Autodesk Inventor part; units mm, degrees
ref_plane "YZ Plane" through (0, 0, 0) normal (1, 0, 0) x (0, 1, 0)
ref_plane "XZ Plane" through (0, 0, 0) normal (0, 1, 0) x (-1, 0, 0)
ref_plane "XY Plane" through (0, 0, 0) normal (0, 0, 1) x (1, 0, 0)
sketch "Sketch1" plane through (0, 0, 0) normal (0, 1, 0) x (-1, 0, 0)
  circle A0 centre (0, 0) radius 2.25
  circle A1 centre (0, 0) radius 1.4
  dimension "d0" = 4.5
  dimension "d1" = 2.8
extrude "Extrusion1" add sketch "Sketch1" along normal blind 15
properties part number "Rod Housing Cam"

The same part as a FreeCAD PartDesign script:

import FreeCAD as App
import Part
import Sketcher

V = App.Vector
Q = App.Units.Quantity

doc = App.newDocument("Part")
body = doc.addObject("PartDesign::Body", "Body")

sketch1 = body.newObject("Sketcher::SketchObject", "Sketch")
sketch1.AttachmentSupport = (doc.getObject("XZ_Plane"), [""])
sketch1.MapMode = "FlatFace"
sketch1.addGeometry(Part.Circle(V(0, 0, 0), V(0, 0, 1), 2.25), False)
sketch1.addGeometry(Part.Circle(V(0, 0, 0), V(0, 0, 1), 1.4), False)
sketch1.addConstraint(Sketcher.Constraint("Coincident", 0, 3, -1, 1))
sketch1.addConstraint(Sketcher.Constraint("Coincident", 1, 3, -1, 1))
sketch1.addConstraint(Sketcher.Constraint("Diameter", 0, Q("4.5 mm")))
sketch1.addConstraint(Sketcher.Constraint("Diameter", 1, Q("2.8 mm")))
pad1 = body.newObject("PartDesign::Pad", "Pad")
pad1.Profile = sketch1
pad1.Length = 15
pad1.Reversed = True

doc.recompute()
